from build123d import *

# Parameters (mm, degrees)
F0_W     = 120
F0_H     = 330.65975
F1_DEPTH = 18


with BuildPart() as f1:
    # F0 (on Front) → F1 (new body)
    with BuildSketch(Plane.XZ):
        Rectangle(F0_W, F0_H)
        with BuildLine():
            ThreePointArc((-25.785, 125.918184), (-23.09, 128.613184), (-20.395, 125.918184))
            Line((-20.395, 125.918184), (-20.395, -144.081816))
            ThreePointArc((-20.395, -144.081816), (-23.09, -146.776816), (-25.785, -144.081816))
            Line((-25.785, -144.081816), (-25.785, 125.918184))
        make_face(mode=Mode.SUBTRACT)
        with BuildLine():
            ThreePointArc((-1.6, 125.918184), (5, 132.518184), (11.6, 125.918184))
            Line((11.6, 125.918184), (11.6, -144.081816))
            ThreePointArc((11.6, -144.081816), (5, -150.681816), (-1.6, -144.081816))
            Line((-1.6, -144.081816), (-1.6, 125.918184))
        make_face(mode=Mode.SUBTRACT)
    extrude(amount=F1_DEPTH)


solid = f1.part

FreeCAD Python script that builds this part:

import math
import FreeCAD as App
import Part
import Sketcher

V = App.Vector


def add_polygon(sketch, points):
    """Adds a closed chain of lines whose ends are joined by coincident constraints."""
    first, n = sketch.GeometryCount, len(points)
    for a, b in zip(points, points[1:] + points[:1]):
        sketch.addGeometry(Part.LineSegment(App.Vector(*a, 0), App.Vector(*b, 0)), False)
    for i in range(n):
        sketch.addConstraint(Sketcher.Constraint("Coincident", first + i, 2, first + (i + 1) % n, 1))

doc = App.newDocument("Part")
body = doc.addObject("PartDesign::Body", "Body")

# Sketch on XZ plane
sketch1 = body.newObject("Sketcher::SketchObject", "Sketch")
sketch1.AttachmentSupport = (doc.getObject("XZ_Plane"), [""])
sketch1.MapMode = "FlatFace"
add_polygon(sketch1, [(-60, 165.3), (-60, -165.3), (60, -165.3), (60, 165.3)])  # lines 0-3
sketch1.addGeometry(Part.LineSegment(V(-25.8, -144.1, 0), V(-25.8, 125.9, 0)), False)  # 4
sketch1.addGeometry(Part.ArcOfCircle(Part.Circle(V(-23.1, 125.9, 0), V(0, 0, 1), 2.7), math.radians(0), math.radians(180)), False)  # 5
sketch1.addGeometry(Part.LineSegment(V(-20.4, 125.9, 0), V(-20.4, -144.1, 0)), False)  # 6
sketch1.addGeometry(Part.ArcOfCircle(Part.Circle(V(-23.1, -144.1, 0), V(0, 0, 1), 2.7), math.radians(180), math.radians(360)), False)  # 7
sketch1.addGeometry(Part.LineSegment(V(-1.6, -144.1, 0), V(-1.6, 125.9, 0)), False)  # 8
sketch1.addGeometry(Part.ArcOfCircle(Part.Circle(V(5, 125.9, 0), V(0, 0, 1), 6.6), math.radians(0), math.radians(180)), False)  # 9
sketch1.addGeometry(Part.LineSegment(V(11.6, 125.9, 0), V(11.6, -144.1, 0)), False)  # 10
sketch1.addGeometry(Part.ArcOfCircle(Part.Circle(V(5, -144.1, 0), V(0, 0, 1), 6.6), math.radians(180), math.radians(360)), False)  # 11
sketch1.addConstraint(Sketcher.Constraint("Tangent", 4, 2, 5, 2))
sketch1.addConstraint(Sketcher.Constraint("Tangent", 5, 1, 6, 1))
sketch1.addConstraint(Sketcher.Constraint("Tangent", 6, 2, 7, 2))
sketch1.addConstraint(Sketcher.Constraint("Tangent", 7, 1, 4, 1))
sketch1.addConstraint(Sketcher.Constraint("Tangent", 8, 2, 9, 2))
sketch1.addConstraint(Sketcher.Constraint("Tangent", 9, 1, 10, 1))
sketch1.addConstraint(Sketcher.Constraint("Tangent", 10, 2, 11, 2))
sketch1.addConstraint(Sketcher.Constraint("Tangent", 11, 1, 8, 1))
sketch1.addConstraint(Sketcher.Constraint("Vertical", 0))
sketch1.addConstraint(Sketcher.Constraint("Horizontal", 1))
sketch1.addConstraint(Sketcher.Constraint("Vertical", 2))
sketch1.addConstraint(Sketcher.Constraint("Horizontal", 3))
sketch1.addConstraint(Sketcher.Constraint("Vertical", 4))
sketch1.addConstraint(Sketcher.Constraint("Vertical", 6))
sketch1.addConstraint(Sketcher.Constraint("Vertical", 8))
sketch1.addConstraint(Sketcher.Constraint("Vertical", 10))
sketch1.addConstraint(Sketcher.Constraint("Symmetric", 0, 2, 2, 2, -1, 1))
sketch1.addConstraint(Sketcher.Constraint("Horizontal", 5, 3, 9, 3))
sketch1.addConstraint(Sketcher.Constraint("Horizontal", 7, 3, 11, 3))
sketch1.addConstraint(Sketcher.Constraint("Radius", 9, 6.6))
sketch1.addConstraint(Sketcher.Constraint("DistanceX", 1, 1, 1, 2, 120.0))
sketch1.addConstraint(Sketcher.Constraint("DistanceY", 4, 1, 4, 2, 270.0))
sketch1.addConstraint(Sketcher.Constraint("DistanceX", -1, 1, 9, 3, 5.0))
sketch1.addConstraint(Sketcher.Constraint("Radius", 5, 2.695))
sketch1.addConstraint(Sketcher.Constraint("DistanceX", 5, 3, -1, 1, 23.09))
sketch1.addConstraint(Sketcher.Constraint("DistanceY", 0, 2, 0, 1, 330.65975))
sketch1.addConstraint(Sketcher.Constraint("DistanceY", 0, 2, 7, 3, 21.248059))
pad1 = body.newObject("PartDesign::Pad", "Pad")
pad1.Profile = sketch1
pad1.Length = 18

doc.recompute()
